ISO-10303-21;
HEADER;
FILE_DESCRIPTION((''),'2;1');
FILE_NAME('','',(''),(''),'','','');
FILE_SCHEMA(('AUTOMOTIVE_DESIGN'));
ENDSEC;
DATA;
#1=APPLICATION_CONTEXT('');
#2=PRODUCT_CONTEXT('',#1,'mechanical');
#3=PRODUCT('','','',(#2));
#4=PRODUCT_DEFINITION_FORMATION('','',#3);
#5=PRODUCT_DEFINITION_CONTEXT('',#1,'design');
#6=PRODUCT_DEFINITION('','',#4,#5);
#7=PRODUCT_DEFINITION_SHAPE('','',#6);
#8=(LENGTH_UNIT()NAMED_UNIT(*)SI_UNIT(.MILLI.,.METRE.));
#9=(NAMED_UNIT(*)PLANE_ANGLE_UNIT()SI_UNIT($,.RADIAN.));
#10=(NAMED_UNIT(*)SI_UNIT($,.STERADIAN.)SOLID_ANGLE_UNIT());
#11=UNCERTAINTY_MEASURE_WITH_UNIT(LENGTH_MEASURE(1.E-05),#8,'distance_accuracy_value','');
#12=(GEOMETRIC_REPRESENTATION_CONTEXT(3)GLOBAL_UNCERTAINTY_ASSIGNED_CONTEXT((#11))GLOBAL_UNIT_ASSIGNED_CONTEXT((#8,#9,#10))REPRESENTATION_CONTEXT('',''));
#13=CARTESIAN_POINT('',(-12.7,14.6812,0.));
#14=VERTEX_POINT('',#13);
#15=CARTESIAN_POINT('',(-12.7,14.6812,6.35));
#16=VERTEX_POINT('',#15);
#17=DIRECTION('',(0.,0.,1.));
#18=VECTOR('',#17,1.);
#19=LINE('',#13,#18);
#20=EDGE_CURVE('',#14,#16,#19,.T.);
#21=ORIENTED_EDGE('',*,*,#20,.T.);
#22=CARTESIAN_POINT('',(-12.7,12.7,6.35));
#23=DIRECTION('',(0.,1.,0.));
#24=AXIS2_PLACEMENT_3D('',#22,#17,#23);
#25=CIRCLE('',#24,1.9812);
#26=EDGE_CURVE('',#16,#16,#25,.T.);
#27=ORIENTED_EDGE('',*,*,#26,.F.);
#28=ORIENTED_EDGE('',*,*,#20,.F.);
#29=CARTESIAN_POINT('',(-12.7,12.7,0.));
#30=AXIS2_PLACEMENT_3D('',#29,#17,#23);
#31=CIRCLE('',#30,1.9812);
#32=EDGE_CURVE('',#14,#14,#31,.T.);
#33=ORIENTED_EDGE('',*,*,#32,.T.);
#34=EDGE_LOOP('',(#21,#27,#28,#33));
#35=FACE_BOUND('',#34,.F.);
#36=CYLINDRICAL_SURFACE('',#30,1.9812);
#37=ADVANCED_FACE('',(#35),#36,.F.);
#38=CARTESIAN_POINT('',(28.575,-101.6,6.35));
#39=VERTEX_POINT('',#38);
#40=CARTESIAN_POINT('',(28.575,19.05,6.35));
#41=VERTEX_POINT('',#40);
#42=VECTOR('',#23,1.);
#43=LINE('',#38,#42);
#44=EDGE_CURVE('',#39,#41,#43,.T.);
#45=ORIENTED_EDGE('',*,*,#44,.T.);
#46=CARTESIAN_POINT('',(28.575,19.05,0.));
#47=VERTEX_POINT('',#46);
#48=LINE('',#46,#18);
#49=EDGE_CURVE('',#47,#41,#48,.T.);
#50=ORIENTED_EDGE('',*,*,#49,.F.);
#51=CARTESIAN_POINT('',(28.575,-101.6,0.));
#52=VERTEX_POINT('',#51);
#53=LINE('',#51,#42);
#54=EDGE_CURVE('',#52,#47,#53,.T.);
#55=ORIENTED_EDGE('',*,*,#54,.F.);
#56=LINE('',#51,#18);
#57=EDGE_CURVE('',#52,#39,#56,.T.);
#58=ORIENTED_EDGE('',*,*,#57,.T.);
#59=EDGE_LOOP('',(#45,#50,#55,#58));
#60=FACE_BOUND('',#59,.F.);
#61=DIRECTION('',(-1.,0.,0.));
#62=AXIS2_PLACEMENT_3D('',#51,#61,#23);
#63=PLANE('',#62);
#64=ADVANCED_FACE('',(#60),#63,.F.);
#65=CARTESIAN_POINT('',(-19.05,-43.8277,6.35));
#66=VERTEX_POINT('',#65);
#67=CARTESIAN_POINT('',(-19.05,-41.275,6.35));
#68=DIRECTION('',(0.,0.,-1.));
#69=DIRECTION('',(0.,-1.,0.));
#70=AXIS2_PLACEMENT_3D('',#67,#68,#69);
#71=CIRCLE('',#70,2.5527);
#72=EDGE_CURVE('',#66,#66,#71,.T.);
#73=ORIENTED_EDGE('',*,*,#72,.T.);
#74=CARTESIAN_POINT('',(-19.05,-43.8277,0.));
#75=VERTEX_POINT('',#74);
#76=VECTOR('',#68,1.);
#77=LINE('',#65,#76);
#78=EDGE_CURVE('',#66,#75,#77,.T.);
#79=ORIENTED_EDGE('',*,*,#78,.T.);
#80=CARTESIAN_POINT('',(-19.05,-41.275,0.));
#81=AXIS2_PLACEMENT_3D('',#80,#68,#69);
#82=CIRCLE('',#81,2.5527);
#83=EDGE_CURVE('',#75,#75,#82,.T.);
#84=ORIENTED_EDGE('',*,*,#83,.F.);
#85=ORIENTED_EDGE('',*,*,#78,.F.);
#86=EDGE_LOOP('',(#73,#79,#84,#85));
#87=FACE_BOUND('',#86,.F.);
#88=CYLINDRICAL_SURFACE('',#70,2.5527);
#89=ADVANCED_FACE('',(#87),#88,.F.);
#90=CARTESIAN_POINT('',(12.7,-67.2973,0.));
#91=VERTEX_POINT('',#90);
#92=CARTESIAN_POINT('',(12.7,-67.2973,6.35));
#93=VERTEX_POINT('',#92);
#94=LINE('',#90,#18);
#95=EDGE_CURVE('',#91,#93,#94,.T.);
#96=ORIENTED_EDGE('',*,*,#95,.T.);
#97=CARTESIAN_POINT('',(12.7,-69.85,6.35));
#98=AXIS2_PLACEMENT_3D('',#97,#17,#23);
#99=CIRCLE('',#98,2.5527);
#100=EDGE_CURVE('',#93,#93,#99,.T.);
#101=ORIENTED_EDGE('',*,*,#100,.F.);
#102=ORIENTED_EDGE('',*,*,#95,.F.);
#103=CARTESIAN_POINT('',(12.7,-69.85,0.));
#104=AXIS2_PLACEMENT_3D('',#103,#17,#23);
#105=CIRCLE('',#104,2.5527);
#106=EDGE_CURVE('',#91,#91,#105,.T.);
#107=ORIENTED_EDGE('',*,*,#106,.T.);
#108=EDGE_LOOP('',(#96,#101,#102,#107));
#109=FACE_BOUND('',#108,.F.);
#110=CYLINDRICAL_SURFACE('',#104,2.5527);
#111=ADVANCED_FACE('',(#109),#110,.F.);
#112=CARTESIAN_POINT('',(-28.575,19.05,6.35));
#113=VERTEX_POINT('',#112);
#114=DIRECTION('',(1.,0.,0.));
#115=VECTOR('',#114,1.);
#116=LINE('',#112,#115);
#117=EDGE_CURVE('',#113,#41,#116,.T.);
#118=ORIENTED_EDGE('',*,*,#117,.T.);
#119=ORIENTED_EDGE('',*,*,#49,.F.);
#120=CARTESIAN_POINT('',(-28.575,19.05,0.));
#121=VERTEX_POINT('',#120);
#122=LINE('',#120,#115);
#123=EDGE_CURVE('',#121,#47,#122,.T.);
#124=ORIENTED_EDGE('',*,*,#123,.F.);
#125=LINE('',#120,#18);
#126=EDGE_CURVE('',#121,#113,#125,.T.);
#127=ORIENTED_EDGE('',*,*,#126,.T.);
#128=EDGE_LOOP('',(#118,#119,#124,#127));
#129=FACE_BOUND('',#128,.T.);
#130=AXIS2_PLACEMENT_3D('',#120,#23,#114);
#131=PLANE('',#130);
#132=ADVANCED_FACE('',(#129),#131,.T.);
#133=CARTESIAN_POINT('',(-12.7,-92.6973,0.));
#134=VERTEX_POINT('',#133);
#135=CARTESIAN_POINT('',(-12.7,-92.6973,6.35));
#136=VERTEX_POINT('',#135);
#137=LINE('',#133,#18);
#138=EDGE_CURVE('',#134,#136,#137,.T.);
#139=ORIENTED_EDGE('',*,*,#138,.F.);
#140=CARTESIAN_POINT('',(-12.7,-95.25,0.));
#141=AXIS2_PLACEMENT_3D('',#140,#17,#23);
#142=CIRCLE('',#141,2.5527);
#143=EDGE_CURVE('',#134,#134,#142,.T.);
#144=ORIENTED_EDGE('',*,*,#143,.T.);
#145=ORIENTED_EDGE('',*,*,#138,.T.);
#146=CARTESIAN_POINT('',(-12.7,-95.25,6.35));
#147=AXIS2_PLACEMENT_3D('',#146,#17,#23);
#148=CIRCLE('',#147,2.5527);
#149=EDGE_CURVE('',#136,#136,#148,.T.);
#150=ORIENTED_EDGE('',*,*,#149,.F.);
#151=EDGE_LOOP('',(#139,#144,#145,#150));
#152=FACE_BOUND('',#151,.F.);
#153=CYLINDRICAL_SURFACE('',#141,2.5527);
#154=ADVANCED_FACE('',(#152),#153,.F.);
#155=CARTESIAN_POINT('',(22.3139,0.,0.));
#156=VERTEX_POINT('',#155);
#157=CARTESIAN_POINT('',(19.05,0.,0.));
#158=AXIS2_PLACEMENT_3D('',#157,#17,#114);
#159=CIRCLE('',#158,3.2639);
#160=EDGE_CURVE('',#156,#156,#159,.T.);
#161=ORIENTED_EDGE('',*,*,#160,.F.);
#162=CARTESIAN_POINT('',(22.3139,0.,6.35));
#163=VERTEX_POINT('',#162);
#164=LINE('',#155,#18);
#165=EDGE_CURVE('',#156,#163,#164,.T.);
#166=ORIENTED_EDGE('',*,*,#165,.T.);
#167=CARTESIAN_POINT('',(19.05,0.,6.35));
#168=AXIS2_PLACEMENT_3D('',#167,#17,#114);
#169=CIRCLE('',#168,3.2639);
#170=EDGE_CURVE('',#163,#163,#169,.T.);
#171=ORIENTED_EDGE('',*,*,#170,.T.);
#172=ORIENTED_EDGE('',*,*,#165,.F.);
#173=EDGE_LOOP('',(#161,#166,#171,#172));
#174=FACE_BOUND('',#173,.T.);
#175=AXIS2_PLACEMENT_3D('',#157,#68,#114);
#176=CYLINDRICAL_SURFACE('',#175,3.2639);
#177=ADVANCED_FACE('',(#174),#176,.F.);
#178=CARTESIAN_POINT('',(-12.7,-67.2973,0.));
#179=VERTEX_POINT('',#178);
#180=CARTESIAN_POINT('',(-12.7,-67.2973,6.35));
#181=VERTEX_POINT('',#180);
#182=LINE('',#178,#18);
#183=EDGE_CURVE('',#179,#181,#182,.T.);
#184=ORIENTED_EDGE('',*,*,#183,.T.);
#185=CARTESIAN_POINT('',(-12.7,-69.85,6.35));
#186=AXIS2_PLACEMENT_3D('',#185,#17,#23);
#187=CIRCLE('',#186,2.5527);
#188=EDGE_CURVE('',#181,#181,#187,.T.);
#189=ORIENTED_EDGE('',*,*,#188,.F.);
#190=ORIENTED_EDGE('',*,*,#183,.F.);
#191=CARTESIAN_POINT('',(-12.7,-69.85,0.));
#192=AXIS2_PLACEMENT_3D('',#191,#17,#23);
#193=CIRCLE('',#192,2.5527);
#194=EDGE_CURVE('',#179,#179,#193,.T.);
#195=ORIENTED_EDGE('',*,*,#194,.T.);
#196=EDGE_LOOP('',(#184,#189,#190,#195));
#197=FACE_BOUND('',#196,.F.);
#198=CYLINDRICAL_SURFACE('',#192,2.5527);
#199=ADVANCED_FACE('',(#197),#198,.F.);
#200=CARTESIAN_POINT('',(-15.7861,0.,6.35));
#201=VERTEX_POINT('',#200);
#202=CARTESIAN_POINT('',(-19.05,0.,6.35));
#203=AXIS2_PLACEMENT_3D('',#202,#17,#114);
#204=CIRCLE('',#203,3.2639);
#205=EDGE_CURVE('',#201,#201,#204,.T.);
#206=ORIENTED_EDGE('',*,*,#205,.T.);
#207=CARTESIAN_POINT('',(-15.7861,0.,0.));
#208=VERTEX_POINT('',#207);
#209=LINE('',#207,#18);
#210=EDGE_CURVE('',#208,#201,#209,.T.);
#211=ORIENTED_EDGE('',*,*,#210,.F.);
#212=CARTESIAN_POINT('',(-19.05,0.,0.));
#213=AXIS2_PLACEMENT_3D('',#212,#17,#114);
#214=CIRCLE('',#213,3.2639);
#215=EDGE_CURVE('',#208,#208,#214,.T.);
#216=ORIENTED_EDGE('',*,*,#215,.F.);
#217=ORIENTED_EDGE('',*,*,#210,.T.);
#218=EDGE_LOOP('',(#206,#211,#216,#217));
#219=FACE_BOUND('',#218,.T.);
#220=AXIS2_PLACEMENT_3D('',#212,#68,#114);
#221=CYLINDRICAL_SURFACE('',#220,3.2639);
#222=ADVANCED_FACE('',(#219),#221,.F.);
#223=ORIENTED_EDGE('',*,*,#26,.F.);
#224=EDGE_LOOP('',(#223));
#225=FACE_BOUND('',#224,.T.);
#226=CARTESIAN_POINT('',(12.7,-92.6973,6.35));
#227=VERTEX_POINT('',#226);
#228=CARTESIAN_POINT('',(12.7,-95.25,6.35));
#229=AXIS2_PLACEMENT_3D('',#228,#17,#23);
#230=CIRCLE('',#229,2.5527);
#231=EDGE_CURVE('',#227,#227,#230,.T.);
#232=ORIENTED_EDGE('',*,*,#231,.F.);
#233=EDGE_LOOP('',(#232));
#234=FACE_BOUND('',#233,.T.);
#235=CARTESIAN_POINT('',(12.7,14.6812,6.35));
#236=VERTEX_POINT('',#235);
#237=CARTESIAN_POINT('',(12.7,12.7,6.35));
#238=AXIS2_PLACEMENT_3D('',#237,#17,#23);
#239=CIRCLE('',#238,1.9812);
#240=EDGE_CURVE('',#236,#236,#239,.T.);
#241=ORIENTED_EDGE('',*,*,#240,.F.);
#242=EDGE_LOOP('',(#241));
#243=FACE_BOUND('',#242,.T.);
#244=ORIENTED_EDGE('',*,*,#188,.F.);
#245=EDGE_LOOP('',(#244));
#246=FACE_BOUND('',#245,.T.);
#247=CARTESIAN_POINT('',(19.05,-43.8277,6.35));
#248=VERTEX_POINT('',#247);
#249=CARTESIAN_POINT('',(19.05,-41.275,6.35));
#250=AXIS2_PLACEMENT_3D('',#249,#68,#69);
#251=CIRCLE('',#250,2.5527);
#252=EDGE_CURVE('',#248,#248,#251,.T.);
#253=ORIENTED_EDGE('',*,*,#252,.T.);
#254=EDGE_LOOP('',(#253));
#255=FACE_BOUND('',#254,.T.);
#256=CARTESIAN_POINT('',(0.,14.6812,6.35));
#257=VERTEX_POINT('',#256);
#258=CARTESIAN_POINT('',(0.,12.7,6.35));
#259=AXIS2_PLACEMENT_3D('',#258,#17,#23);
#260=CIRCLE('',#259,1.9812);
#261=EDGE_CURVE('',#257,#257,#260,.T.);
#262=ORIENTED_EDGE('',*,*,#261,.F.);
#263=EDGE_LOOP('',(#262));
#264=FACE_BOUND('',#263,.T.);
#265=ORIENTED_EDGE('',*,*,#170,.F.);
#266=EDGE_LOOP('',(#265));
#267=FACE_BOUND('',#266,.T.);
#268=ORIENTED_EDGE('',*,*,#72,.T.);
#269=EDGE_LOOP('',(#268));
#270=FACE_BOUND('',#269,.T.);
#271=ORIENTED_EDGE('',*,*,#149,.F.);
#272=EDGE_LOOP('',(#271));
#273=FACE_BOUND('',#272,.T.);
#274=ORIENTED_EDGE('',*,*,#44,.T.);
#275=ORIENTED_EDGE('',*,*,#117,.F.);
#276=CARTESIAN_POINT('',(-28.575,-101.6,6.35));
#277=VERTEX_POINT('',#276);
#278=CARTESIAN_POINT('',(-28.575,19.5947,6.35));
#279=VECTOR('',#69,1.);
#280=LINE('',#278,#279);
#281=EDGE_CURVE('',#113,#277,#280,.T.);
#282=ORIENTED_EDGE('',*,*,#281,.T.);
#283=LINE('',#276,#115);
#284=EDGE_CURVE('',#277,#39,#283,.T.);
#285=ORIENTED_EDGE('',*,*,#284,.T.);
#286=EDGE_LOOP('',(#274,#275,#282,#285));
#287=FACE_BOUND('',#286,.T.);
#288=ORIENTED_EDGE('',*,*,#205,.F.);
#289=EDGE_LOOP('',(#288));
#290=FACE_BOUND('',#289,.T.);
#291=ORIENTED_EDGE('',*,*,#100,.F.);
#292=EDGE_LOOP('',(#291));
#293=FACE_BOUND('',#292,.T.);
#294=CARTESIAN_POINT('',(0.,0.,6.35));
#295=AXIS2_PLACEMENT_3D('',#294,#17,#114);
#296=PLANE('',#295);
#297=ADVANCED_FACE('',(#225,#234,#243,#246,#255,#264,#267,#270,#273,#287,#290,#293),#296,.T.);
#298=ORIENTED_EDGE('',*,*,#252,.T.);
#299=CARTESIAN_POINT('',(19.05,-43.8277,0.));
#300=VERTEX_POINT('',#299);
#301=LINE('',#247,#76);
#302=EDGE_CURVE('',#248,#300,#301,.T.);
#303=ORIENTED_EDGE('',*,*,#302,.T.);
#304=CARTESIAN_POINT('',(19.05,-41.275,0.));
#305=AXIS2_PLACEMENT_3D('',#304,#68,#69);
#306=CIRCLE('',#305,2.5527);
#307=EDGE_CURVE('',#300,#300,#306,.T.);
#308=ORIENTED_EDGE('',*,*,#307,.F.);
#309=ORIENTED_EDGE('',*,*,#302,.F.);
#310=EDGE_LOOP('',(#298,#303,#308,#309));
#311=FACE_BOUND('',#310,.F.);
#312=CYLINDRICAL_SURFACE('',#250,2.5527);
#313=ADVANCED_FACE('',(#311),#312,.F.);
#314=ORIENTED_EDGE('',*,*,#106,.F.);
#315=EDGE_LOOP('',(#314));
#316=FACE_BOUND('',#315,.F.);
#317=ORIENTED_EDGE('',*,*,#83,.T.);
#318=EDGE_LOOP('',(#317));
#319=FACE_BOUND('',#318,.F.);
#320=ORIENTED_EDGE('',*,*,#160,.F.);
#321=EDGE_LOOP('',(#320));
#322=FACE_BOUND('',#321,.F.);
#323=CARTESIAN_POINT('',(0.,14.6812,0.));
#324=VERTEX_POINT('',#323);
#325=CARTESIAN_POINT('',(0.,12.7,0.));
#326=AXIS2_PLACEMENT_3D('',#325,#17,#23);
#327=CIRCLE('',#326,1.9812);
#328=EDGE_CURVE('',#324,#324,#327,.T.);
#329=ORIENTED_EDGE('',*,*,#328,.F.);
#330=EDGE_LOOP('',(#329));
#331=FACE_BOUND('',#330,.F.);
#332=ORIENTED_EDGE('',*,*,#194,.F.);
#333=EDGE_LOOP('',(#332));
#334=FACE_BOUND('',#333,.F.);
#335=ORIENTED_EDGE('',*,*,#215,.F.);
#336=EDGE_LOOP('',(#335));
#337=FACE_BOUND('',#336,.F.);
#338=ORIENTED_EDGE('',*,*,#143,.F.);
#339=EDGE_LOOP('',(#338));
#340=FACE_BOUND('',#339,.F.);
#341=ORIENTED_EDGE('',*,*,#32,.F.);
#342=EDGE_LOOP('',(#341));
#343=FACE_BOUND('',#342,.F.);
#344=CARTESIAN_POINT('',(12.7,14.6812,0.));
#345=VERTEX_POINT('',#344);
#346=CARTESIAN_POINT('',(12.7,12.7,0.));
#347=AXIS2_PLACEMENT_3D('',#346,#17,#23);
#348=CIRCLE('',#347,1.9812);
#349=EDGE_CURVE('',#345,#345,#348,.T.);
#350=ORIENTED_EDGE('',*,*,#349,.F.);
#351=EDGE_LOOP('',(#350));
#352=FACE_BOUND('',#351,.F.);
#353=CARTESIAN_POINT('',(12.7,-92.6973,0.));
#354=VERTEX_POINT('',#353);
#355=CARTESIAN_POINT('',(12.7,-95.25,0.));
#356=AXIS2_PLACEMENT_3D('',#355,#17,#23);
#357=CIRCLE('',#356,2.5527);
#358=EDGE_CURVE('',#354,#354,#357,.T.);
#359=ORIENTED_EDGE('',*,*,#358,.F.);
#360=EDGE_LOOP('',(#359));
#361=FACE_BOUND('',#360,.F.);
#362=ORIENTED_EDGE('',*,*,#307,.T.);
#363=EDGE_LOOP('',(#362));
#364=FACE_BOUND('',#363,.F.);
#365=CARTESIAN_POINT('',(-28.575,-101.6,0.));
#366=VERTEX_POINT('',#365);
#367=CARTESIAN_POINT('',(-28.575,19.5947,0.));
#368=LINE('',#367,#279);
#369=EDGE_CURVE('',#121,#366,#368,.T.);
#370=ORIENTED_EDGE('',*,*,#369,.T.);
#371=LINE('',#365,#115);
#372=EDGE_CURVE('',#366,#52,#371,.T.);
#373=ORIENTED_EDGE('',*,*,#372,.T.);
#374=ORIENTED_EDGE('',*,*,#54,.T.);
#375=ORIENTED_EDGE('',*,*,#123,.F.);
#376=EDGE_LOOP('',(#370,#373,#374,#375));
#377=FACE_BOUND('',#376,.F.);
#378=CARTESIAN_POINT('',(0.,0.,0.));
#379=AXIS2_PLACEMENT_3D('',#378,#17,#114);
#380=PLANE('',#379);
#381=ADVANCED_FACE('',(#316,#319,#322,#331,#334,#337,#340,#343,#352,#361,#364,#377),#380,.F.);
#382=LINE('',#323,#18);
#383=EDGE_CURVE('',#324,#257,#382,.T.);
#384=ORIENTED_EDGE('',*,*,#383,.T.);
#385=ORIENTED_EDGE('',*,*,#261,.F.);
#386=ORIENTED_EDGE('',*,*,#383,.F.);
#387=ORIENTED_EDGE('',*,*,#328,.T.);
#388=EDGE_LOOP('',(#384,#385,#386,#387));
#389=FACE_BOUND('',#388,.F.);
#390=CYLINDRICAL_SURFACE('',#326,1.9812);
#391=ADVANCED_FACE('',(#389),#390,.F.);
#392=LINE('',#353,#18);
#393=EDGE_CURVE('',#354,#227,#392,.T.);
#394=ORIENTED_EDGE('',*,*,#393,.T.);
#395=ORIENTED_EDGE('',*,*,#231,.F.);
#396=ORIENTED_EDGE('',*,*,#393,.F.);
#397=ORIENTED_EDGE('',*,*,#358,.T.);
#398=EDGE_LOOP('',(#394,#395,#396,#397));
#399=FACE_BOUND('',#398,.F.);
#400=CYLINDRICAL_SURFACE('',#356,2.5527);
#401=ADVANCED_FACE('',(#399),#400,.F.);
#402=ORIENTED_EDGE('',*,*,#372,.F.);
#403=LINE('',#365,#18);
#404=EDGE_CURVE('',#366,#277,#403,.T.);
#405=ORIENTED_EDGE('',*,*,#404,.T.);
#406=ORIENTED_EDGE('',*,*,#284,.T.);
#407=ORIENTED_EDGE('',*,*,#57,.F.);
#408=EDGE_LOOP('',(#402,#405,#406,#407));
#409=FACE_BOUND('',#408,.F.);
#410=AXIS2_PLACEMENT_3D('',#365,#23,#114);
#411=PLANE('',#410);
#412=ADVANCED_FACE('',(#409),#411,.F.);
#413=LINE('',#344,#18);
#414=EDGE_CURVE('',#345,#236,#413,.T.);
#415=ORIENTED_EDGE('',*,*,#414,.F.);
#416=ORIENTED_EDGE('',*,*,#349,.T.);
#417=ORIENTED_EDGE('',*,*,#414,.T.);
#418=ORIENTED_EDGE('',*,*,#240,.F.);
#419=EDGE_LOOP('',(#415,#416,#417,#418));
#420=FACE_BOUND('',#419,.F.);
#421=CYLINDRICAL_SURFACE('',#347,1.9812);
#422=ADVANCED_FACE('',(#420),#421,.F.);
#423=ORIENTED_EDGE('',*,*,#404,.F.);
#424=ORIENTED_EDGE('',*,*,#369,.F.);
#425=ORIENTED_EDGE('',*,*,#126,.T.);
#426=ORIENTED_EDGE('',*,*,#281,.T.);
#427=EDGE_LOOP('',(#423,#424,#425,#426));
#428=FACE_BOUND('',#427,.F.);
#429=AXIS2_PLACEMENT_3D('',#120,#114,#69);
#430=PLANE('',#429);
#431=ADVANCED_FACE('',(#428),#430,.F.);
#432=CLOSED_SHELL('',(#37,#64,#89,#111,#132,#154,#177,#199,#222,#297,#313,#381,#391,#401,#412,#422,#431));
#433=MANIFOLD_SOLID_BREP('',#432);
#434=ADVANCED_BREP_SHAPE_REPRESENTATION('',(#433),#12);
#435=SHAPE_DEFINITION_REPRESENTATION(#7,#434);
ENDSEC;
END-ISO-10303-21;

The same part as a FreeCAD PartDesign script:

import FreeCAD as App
import Part
import Sketcher

V = App.Vector
Q = App.Units.Quantity


def add_polygon(sketch, points):
    """Adds a closed chain of lines whose ends are joined by coincident constraints."""
    first, n = sketch.GeometryCount, len(points)
    for a, b in zip(points, points[1:] + points[:1]):
        sketch.addGeometry(Part.LineSegment(App.Vector(*a, 0), App.Vector(*b, 0)), False)
    for i in range(n):
        sketch.addConstraint(Sketcher.Constraint("Coincident", first + i, 2, first + (i + 1) % n, 1))

doc = App.newDocument("Part")
body = doc.addObject("PartDesign::Body", "Body")

# Sketch on XY plane
sketch1 = body.newObject("Sketcher::SketchObject", "Sketch")
sketch1.AttachmentSupport = (doc.getObject("XY_Plane"), [""])
sketch1.MapMode = "FlatFace"
add_polygon(sketch1, [(28.6, 19.1), (-28.6, 19.1), (-28.6, -101.6), (28.6, -101.6)])  # lines 0-3
sketch1.addGeometry(Part.Circle(V(-19.1, 0, 0), V(0, 0, 1), 3.3), False)  # 4
sketch1.addGeometry(Part.Circle(V(19.1, 0, 0), V(0, 0, 1), 3.3), False)  # 5
sketch1.addConstraint(Sketcher.Constraint("Horizontal", 0))
sketch1.addConstraint(Sketcher.Constraint("Vertical", 1))
sketch1.addConstraint(Sketcher.Constraint("Horizontal", 2))
sketch1.addConstraint(Sketcher.Constraint("Vertical", 3))
sketch1.addConstraint(Sketcher.Constraint("Equal", 4, 5))
sketch1.addConstraint(Sketcher.Constraint("Symmetric", 4, 3, 5, 3, -1, 1))
sketch1.addConstraint(Sketcher.Constraint("PointOnObject", 4, 3, -1))
sketch1.addConstraint(Sketcher.Constraint("Diameter", 4, Q("0.257 in")))
sketch1.addConstraint(Sketcher.Constraint("DistanceY", 1, 2, -1, 1, Q("4 in")))
sketch1.addConstraint(Sketcher.Constraint("DistanceX", 0, 2, 0, 1, Q("2.25 in")))
sketch1.addConstraint(Sketcher.Constraint("DistanceY", 1, 2, 1, 1, Q("4.75 in")))
sketch1.addConstraint(Sketcher.Constraint("DistanceX", 4, 3, 5, 3, Q("1.5 in")))
sketch1.addConstraint(Sketcher.Constraint("DistanceX", 0, 2, -1, 1, Q("1.125 in")))
pad1 = body.newObject("PartDesign::Pad", "Pad")
pad1.Profile = sketch1
pad1.Length = Q("0.25 in")

# Sketch on XY plane
sketch2 = body.newObject("Sketcher::SketchObject", "Sketch001")
sketch2.AttachmentSupport = (doc.getObject("XY_Plane"), [""])
sketch2.MapMode = "FlatFace"
sketch2.AttachmentOffset = App.Placement(V(0, 0, 0.25 * 25.4), App.Rotation())
sketch2.addGeometry(Part.Circle(V(-19.1, -41.3, 0), V(0, 0, 1), 2.6), False)
sketch2.addGeometry(Part.Circle(V(19.1, -41.3, 0), V(0, 0, 1), 2.6), False)
sketch2.addConstraint(Sketcher.Constraint("Equal", 0, 1))
sketch2.addConstraint(Sketcher.Constraint("Symmetric", 0, 3, 1, 3, -2))
sketch2.addConstraint(Sketcher.Constraint("Diameter", 0, Q("0.201 in")))
sketch2.addConstraint(Sketcher.Constraint("DistanceX", 0, 3, 1, 3, Q("1.5 in")))
sketch2.addConstraint(Sketcher.Constraint("DistanceY", 0, 3, -1, 1, Q("1.625 in")))
doc.recompute()
hole = body.newObject("PartDesign::Hole", "Hole")
hole.Profile = sketch2
hole.ThreadType = "None"
hole.Diameter = Q("0.201 in")
hole.DepthType = "ThroughAll"

# Sketch on XY plane
sketch3 = body.newObject("Sketcher::SketchObject", "Sketch002")
sketch3.AttachmentSupport = (doc.getObject("XY_Plane"), [""])
sketch3.MapMode = "FlatFace"
sketch3.addGeometry(Part.Circle(V(-12.7, 12.7, 0), V(0, 0, 1), 2), False)
sketch3.addGeometry(Part.Circle(V(0, 12.7, 0), V(0, 0, 1), 2), False)
sketch3.addGeometry(Part.Circle(V(12.7, 12.7, 0), V(0, 0, 1), 2), False)
sketch3.addConstraint(Sketcher.Constraint("Equal", 0, 1))
sketch3.addConstraint(Sketcher.Constraint("Equal", 1, 2))
sketch3.addConstraint(Sketcher.Constraint("Symmetric", 0, 3, 2, 3, -2))
sketch3.addConstraint(Sketcher.Constraint("PointOnObject", 1, 3, -2))
sketch3.addConstraint(Sketcher.Constraint("Horizontal", 0, 3, 1, 3))
sketch3.addConstraint(Sketcher.Constraint("Diameter", 0, Q("0.156 in")))
sketch3.addConstraint(Sketcher.Constraint("DistanceX", 0, 3, 2, 3, Q("1 in")))
sketch3.addConstraint(Sketcher.Constraint("DistanceY", -1, 1, 0, 3, Q("0.5 in")))
doc.recompute()
hole2 = body.newObject("PartDesign::Hole", "Hole001")
hole2.Profile = sketch3
hole2.ThreadType = "None"
hole2.Diameter = Q("0.156 in")
hole2.DepthType = "ThroughAll"
hole2.Reversed = True

# Sketch on XY plane
sketch4 = body.newObject("Sketcher::SketchObject", "Sketch003")
sketch4.AttachmentSupport = (doc.getObject("XY_Plane"), [""])
sketch4.MapMode = "FlatFace"
sketch4.addGeometry(Part.Circle(V(-12.7, -69.8, 0), V(0, 0, 1), 2.6), False)
sketch4.addGeometry(Part.Circle(V(12.7, -69.8, 0), V(0, 0, 1), 2.6), False)
sketch4.addGeometry(Part.Circle(V(-12.7, -95.2, 0), V(0, 0, 1), 2.6), False)
sketch4.addGeometry(Part.Circle(V(12.7, -95.2, 0), V(0, 0, 1), 2.6), False)
sketch4.addConstraint(Sketcher.Constraint("Equal", 0, 1))
sketch4.addConstraint(Sketcher.Constraint("Equal", 1, 2))
sketch4.addConstraint(Sketcher.Constraint("Equal", 2, 3))
sketch4.addConstraint(Sketcher.Constraint("Symmetric", 0, 3, 1, 3, -2))
sketch4.addConstraint(Sketcher.Constraint("Symmetric", 2, 3, 3, 3, -2))
sketch4.addConstraint(Sketcher.Constraint("Vertical", 0, 3, 2, 3))
sketch4.addConstraint(Sketcher.Constraint("Diameter", 0, Q("0.201 in")))
sketch4.addConstraint(Sketcher.Constraint("DistanceX", 0, 3, 1, 3, Q("1 in")))
sketch4.addConstraint(Sketcher.Constraint("DistanceY", 2, 3, 0, 3, Q("1 in")))
sketch4.addConstraint(Sketcher.Constraint("DistanceY", 0, 3, -1, 1, Q("2.75 in")))
doc.recompute()
hole3 = body.newObject("PartDesign::Hole", "Hole002")
hole3.Profile = sketch4
hole3.ThreadType = "None"
hole3.Diameter = Q("0.201 in")
hole3.DepthType = "ThroughAll"
hole3.Reversed = True

doc.recompute()
